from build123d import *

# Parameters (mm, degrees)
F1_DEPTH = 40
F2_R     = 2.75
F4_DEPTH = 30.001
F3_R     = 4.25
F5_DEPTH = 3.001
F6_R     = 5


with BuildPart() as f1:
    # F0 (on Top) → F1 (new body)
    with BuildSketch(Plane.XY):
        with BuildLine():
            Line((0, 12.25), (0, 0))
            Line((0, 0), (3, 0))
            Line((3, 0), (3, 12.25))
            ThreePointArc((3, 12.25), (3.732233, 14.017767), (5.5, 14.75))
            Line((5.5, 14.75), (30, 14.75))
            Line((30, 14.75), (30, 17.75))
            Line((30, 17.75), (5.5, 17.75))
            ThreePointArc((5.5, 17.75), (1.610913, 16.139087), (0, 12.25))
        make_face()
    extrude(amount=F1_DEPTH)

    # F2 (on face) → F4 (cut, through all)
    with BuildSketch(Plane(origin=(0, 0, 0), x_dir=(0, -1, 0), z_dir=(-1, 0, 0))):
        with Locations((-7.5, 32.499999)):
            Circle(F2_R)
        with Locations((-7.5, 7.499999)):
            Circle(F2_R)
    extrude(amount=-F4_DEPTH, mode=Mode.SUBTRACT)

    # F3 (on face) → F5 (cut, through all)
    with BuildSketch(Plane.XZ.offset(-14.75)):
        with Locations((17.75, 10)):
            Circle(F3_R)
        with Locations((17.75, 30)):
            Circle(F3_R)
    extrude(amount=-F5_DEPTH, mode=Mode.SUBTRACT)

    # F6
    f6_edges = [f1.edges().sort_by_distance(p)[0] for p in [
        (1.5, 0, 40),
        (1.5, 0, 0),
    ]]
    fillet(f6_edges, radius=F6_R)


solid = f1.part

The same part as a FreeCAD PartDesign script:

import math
import FreeCAD as App
import Part
import Sketcher
from FreeCAD import Vector
Q = App.Units.Quantity


def edges_at(feature, points):
    """Names of the edges that pass closest to the given points."""
    edges = feature.Shape.Edges
    near = lambda p: min(range(len(edges)), key=lambda i: edges[i].distToShape(Part.Vertex(*p))[0])
    return sorted({f"Edge{near(p) + 1}" for p in points})

doc = App.newDocument("Part")
body = doc.addObject("PartDesign::Body", "Body")

sketch1 = doc.addObject("Sketcher::SketchObject", "Sketch")
body.addObject(sketch1)
sketch1.AttachmentSupport = (doc.XY_Plane, [""])
sketch1.MapMode = "FlatFace"
sketch1.addGeometry([
    Part.LineSegment(Vector(0, 12.2, 0), Vector(0, 0, 0)),
    Part.LineSegment(Vector(0, 0, 0), Vector(3, 0, 0)),
    Part.LineSegment(Vector(3, 0, 0), Vector(3, 12.2, 0)),
    Part.ArcOfCircle(Part.Circle(Vector(5.5, 12.3, 0), Vector(0, 0, 1), 2.5), math.radians(90), math.radians(180)),
    Part.LineSegment(Vector(5.5, 14.8, 0), Vector(30, 14.8, 0)),
    Part.LineSegment(Vector(30, 14.8, 0), Vector(30, 17.8, 0)),
    Part.LineSegment(Vector(30, 17.8, 0), Vector(5.5, 17.8, 0)),
    Part.ArcOfCircle(Part.Circle(Vector(5.5, 12.2, 0), Vector(0, 0, 1), 5.5), math.radians(90), math.radians(180)),
], False)
sketch1.addConstraint([
    Sketcher.Constraint("Coincident", 0, 2, 1, 1),
    Sketcher.Constraint("Coincident", 1, 2, 2, 1),
    Sketcher.Constraint("Tangent", 2, 2, 3, 2),
    Sketcher.Constraint("Tangent", 3, 1, 4, 1),
    Sketcher.Constraint("Coincident", 4, 2, 5, 1),
    Sketcher.Constraint("Coincident", 5, 2, 6, 1),
    Sketcher.Constraint("Tangent", 6, 2, 7, 1),
    Sketcher.Constraint("Tangent", 7, 2, 0, 1),
    Sketcher.Constraint("Vertical", 0),
    Sketcher.Constraint("Horizontal", 1),
    Sketcher.Constraint("Vertical", 2),
    Sketcher.Constraint("Horizontal", 4),
    Sketcher.Constraint("Vertical", 5),
    Sketcher.Constraint("Horizontal", 6),
    Sketcher.Constraint("Coincident", 0, 2, -1, 1),
    Sketcher.Constraint("Coincident", 7, 3, 3, 3),
    Sketcher.Constraint("Radius", 3, Q("2.5 mm")),
    Sketcher.Constraint("Radius", 7, Q("5.500001 mm")),
    Sketcher.Constraint("DistanceX", 4, 1, 4, 2, Q("24.5 mm")),
    Sketcher.Constraint("DistanceY", 0, 2, 0, 1, Q("12.25 mm")),
])
pad1 = doc.addObject("PartDesign::Pad", "Pad")
body.addObject(pad1)
pad1.Profile = sketch1
pad1.Length = 40

sketch2 = doc.addObject("Sketcher::SketchObject", "Sketch001")
body.addObject(sketch2)
sketch2.AttachmentSupport = (doc.YZ_Plane, [""])
sketch2.MapMode = "FlatFace"
sketch2.addGeometry([
    Part.Circle(Vector(7.5, 32.5, 0), Vector(0, 0, 1), 2.8),
    Part.Circle(Vector(7.5, 7.5, 0), Vector(0, 0, 1), 2.8),
], False)
sketch2.addConstraint([
    Sketcher.Constraint("Equal", 0, 1),
    Sketcher.Constraint("Vertical", 0, 3, 1, 3),
    Sketcher.Constraint("Diameter", 0, Q("5.5 mm")),
    Sketcher.Constraint("DistanceY", 1, 3, 0, 3, Q("25 mm")),
    Sketcher.Constraint("DistanceX", -1, 1, 0, 3, Q("7.5 mm")),
    Sketcher.Constraint("DistanceY", -1, 1, 0, 3, Q("32.499999 mm")),
])
pocket1 = doc.addObject("PartDesign::Pocket", "Pocket")
body.addObject(pocket1)
pocket1.Profile = sketch2
pocket1.Type = "ThroughAll"
pocket1.Reversed = True

sketch3 = doc.addObject("Sketcher::SketchObject", "Sketch002")
body.addObject(sketch3)
sketch3.AttachmentSupport = (doc.XZ_Plane, [""])
sketch3.MapMode = "FlatFace"
sketch3.AttachmentOffset = App.Placement(Vector(0, 0, -14.75), App.Rotation())
sketch3.addGeometry([
    Part.Circle(Vector(17.8, 10, 0), Vector(0, 0, 1), 4.2),
    Part.Circle(Vector(17.8, 30, 0), Vector(0, 0, 1), 4.2),
], False)
sketch3.addConstraint([
    Sketcher.Constraint("Equal", 0, 1),
    Sketcher.Constraint("Vertical", 0, 3, 1, 3),
    Sketcher.Constraint("Diameter", 0, Q("8.5 mm")),
    Sketcher.Constraint("DistanceY", -1, 1, 0, 3, Q("10 mm")),
    Sketcher.Constraint("DistanceY", -1, 1, 1, 3, Q("30 mm")),
    Sketcher.Constraint("DistanceX", -1, 1, 0, 3, Q("17.75 mm")),
])
pocket2 = doc.addObject("PartDesign::Pocket", "Pocket001")
body.addObject(pocket2)
pocket2.Profile = sketch3
pocket2.Type = "ThroughAll"
doc.recompute()

fillet = doc.addObject("PartDesign::Fillet", "Fillet")
body.addObject(fillet)
fillet.Base = (pocket2, edges_at(pocket2, [(1.5, 0, 40), (1.5, 0, 0)]))
fillet.Radius = 5

doc.recompute()
